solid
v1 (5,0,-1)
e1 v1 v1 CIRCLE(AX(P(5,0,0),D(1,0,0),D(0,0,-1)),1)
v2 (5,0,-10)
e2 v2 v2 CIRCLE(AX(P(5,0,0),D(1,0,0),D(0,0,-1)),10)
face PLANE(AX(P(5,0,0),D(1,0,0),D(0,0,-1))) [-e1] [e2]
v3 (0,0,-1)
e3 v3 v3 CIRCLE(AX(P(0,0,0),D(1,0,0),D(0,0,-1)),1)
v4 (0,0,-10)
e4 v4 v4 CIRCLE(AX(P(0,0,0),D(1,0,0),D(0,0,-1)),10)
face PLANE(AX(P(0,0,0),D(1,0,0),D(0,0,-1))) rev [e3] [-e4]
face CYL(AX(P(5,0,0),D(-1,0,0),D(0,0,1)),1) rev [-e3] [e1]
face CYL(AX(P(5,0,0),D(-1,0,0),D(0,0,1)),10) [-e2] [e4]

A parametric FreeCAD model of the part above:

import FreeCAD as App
import Part
import Sketcher
from FreeCAD import Vector
Q = App.Units.Quantity

doc = App.newDocument("Part")
body = doc.addObject("PartDesign::Body", "Body")

# Sketch on YZ plane
sketch1 = body.newObject("Sketcher::SketchObject", "Sketch")
sketch1.AttachmentSupport = (doc.getObject("YZ_Plane"), [""])
sketch1.MapMode = "FlatFace"
sketch1.addGeometry(Part.Circle(Vector(0, 0, 0), Vector(0, 0, 1), 10), False)
sketch1.addGeometry(Part.Circle(Vector(0, 0, 0), Vector(0, 0, 1), 1), False)
sketch1.addConstraint(Sketcher.Constraint("Coincident", 0, 3, -1, 1))
sketch1.addConstraint(Sketcher.Constraint("Coincident", 1, 3, -1, 1))
sketch1.addConstraint(Sketcher.Constraint("Diameter", 0, Q("20 mm")))
sketch1.addConstraint(Sketcher.Constraint("Diameter", 1, Q("2 mm")))
pad1 = body.newObject("PartDesign::Pad", "Pad")
pad1.Profile = sketch1
pad1.Length = 5

doc.recompute()
